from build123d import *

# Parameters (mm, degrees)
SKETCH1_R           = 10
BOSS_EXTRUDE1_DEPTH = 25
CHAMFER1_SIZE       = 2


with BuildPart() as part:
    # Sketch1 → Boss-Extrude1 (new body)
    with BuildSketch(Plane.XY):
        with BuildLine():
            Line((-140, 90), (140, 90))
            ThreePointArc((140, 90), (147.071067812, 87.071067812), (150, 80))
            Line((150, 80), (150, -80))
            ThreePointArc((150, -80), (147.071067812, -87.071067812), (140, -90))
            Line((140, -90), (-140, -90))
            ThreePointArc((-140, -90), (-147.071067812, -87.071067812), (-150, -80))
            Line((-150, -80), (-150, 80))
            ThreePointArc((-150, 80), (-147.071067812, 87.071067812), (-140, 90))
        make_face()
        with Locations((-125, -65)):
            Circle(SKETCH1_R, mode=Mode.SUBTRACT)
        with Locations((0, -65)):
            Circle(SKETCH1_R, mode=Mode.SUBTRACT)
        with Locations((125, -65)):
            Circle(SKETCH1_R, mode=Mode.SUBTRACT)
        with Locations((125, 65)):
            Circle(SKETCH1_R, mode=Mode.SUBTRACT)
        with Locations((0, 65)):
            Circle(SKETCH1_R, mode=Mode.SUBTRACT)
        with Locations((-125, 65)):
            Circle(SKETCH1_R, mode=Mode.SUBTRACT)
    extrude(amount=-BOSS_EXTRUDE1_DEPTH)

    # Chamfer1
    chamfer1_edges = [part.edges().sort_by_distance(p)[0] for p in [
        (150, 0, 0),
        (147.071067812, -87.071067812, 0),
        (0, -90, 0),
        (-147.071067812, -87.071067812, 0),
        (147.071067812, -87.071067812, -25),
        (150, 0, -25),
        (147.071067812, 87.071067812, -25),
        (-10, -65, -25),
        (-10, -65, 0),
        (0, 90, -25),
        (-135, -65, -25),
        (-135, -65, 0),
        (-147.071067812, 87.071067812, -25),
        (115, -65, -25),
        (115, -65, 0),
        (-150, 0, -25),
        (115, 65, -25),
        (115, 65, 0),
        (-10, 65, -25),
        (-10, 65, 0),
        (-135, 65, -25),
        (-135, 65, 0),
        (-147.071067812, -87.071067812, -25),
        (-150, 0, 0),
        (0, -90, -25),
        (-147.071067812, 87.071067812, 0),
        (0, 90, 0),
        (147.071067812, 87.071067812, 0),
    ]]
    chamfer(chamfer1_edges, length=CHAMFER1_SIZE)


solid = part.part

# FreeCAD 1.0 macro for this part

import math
import FreeCAD as App
import Part
import Sketcher

V = App.Vector


def edges_at(feature, points):
    """Names of the edges that pass closest to the given points."""
    edges = feature.Shape.Edges
    near = lambda p: min(range(len(edges)), key=lambda i: edges[i].distToShape(Part.Vertex(*p))[0])
    return sorted({f"Edge{near(p) + 1}" for p in points})

doc = App.newDocument("Part")
body = doc.addObject("PartDesign::Body", "Body")

# Sketch on XY plane
sketch1 = doc.addObject("Sketcher::SketchObject", "Sketch")
body.addObject(sketch1)
sketch1.AttachmentSupport = (doc.XY_Plane, [""])
sketch1.MapMode = "FlatFace"
sketch1.addGeometry([
    Part.LineSegment(V(140, 90, 0), V(-140, 90, 0)),  # 0
    Part.ArcOfCircle(Part.Circle(V(-140, 80, 0), V(0, 0, 1), 10), math.radians(90), math.radians(180)),  # 1
    Part.LineSegment(V(-150, 80, 0), V(-150, -80, 0)),  # 2
    Part.ArcOfCircle(Part.Circle(V(-140, -80, 0), V(0, 0, 1), 10), math.radians(180), math.radians(270)),  # 3
    Part.LineSegment(V(-140, -90, 0), V(140, -90, 0)),  # 4
    Part.ArcOfCircle(Part.Circle(V(140, -80, 0), V(0, 0, 1), 10), math.radians(-90), math.radians(0)),  # 5
    Part.LineSegment(V(150, -80, 0), V(150, 80, 0)),  # 6
    Part.ArcOfCircle(Part.Circle(V(140, 80, 0), V(0, 0, 1), 10), math.radians(0), math.radians(90)),  # 7
    Part.Circle(V(125, -65, 0), V(0, 0, 1), 10),  # 8
    Part.Circle(V(0, -65, 0), V(0, 0, 1), 10),  # 9
    Part.Circle(V(-125, -65, 0), V(0, 0, 1), 10),  # 10
    Part.Circle(V(125, 65, 0), V(0, 0, 1), 10),  # 11
    Part.Circle(V(0, 65, 0), V(0, 0, 1), 10),  # 12
    Part.Circle(V(-125, 65, 0), V(0, 0, 1), 10),  # 13
], False)
sketch1.addConstraint([
    Sketcher.Constraint("Tangent", 0, 2, 1, 1),
    Sketcher.Constraint("Tangent", 1, 2, 2, 1),
    Sketcher.Constraint("Tangent", 2, 2, 3, 1),
    Sketcher.Constraint("Tangent", 3, 2, 4, 1),
    Sketcher.Constraint("Tangent", 4, 2, 5, 1),
    Sketcher.Constraint("Tangent", 5, 2, 6, 1),
    Sketcher.Constraint("Tangent", 6, 2, 7, 1),
    Sketcher.Constraint("Tangent", 7, 2, 0, 1),
    Sketcher.Constraint("Horizontal", 0),
    Sketcher.Constraint("Vertical", 2),
    Sketcher.Constraint("Horizontal", 4),
    Sketcher.Constraint("Vertical", 6),
    Sketcher.Constraint("Equal", 1, 3),
    Sketcher.Constraint("Equal", 3, 5),
    Sketcher.Constraint("Equal", 5, 7),
    Sketcher.Constraint("Equal", 7, 8),
    Sketcher.Constraint("Equal", 8, 9),
    Sketcher.Constraint("Equal", 9, 10),
    Sketcher.Constraint("Equal", 10, 11),
    Sketcher.Constraint("Equal", 11, 12),
    Sketcher.Constraint("Equal", 12, 13),
    Sketcher.Constraint("Symmetric", 1, 3, 5, 3, -1, 1),
    Sketcher.Constraint("Symmetric", 10, 3, 11, 3, -1, 1),
    Sketcher.Constraint("Symmetric", 9, 3, 12, 3, -1, 1),
    Sketcher.Constraint("Symmetric", 8, 3, 13, 3, -1, 1),
    Sketcher.Constraint("Symmetric", 8, 3, 10, 3, -2),
    Sketcher.Constraint("PointOnObject", 9, 3, -2),
    Sketcher.Constraint("Horizontal", 8, 3, 9, 3),
    Sketcher.Constraint("Diameter", 8, 20.0),
    Sketcher.Constraint("DistanceX", 0, 2, 0, 1, 280.0),
    Sketcher.Constraint("DistanceY", 2, 2, 2, 1, 160.0),
    Sketcher.Constraint("DistanceX", -1, 1, 8, 3, 125.0),
    Sketcher.Constraint("DistanceY", 8, 3, -1, 1, 65.0),
])
pad1 = doc.addObject("PartDesign::Pad", "Pad")
body.addObject(pad1)
pad1.Profile = sketch1
pad1.Length = 25
pad1.Reversed = True
doc.recompute()

chamfer = doc.addObject("PartDesign::Chamfer", "Chamfer")
body.addObject(chamfer)
chamfer.Base = (pad1, edges_at(pad1, [
    (150, 0, 0),
    (147.071, -87.071, 0),
    (0, -90, 0),
    (-147.071, -87.071, 0),
    (147.071, -87.071, -25),
    (150, 0, -25),
    (147.071, 87.071, -25),
    (-10, -65, -25),
    (-10, -65, 0),
    (0, 90, -25),
    (-135, -65, -25),
    (-135, -65, 0),
    (-147.071, 87.071, -25),
    (115, -65, -25),
    (115, -65, 0),
    (-150, 0, -25),
    (115, 65, -25),
    (115, 65, 0),
    (-10, 65, -25),
    (-10, 65, 0),
    (-135, 65, -25),
    (-135, 65, 0),
    (-147.071, -87.071, -25),
    (-150, 0, 0),
    (0, -90, -25),
    (-147.071, 87.071, 0),
    (0, 90, 0),
    (147.071, 87.071, 0),
]))
chamfer.Size = 2

doc.recompute()
